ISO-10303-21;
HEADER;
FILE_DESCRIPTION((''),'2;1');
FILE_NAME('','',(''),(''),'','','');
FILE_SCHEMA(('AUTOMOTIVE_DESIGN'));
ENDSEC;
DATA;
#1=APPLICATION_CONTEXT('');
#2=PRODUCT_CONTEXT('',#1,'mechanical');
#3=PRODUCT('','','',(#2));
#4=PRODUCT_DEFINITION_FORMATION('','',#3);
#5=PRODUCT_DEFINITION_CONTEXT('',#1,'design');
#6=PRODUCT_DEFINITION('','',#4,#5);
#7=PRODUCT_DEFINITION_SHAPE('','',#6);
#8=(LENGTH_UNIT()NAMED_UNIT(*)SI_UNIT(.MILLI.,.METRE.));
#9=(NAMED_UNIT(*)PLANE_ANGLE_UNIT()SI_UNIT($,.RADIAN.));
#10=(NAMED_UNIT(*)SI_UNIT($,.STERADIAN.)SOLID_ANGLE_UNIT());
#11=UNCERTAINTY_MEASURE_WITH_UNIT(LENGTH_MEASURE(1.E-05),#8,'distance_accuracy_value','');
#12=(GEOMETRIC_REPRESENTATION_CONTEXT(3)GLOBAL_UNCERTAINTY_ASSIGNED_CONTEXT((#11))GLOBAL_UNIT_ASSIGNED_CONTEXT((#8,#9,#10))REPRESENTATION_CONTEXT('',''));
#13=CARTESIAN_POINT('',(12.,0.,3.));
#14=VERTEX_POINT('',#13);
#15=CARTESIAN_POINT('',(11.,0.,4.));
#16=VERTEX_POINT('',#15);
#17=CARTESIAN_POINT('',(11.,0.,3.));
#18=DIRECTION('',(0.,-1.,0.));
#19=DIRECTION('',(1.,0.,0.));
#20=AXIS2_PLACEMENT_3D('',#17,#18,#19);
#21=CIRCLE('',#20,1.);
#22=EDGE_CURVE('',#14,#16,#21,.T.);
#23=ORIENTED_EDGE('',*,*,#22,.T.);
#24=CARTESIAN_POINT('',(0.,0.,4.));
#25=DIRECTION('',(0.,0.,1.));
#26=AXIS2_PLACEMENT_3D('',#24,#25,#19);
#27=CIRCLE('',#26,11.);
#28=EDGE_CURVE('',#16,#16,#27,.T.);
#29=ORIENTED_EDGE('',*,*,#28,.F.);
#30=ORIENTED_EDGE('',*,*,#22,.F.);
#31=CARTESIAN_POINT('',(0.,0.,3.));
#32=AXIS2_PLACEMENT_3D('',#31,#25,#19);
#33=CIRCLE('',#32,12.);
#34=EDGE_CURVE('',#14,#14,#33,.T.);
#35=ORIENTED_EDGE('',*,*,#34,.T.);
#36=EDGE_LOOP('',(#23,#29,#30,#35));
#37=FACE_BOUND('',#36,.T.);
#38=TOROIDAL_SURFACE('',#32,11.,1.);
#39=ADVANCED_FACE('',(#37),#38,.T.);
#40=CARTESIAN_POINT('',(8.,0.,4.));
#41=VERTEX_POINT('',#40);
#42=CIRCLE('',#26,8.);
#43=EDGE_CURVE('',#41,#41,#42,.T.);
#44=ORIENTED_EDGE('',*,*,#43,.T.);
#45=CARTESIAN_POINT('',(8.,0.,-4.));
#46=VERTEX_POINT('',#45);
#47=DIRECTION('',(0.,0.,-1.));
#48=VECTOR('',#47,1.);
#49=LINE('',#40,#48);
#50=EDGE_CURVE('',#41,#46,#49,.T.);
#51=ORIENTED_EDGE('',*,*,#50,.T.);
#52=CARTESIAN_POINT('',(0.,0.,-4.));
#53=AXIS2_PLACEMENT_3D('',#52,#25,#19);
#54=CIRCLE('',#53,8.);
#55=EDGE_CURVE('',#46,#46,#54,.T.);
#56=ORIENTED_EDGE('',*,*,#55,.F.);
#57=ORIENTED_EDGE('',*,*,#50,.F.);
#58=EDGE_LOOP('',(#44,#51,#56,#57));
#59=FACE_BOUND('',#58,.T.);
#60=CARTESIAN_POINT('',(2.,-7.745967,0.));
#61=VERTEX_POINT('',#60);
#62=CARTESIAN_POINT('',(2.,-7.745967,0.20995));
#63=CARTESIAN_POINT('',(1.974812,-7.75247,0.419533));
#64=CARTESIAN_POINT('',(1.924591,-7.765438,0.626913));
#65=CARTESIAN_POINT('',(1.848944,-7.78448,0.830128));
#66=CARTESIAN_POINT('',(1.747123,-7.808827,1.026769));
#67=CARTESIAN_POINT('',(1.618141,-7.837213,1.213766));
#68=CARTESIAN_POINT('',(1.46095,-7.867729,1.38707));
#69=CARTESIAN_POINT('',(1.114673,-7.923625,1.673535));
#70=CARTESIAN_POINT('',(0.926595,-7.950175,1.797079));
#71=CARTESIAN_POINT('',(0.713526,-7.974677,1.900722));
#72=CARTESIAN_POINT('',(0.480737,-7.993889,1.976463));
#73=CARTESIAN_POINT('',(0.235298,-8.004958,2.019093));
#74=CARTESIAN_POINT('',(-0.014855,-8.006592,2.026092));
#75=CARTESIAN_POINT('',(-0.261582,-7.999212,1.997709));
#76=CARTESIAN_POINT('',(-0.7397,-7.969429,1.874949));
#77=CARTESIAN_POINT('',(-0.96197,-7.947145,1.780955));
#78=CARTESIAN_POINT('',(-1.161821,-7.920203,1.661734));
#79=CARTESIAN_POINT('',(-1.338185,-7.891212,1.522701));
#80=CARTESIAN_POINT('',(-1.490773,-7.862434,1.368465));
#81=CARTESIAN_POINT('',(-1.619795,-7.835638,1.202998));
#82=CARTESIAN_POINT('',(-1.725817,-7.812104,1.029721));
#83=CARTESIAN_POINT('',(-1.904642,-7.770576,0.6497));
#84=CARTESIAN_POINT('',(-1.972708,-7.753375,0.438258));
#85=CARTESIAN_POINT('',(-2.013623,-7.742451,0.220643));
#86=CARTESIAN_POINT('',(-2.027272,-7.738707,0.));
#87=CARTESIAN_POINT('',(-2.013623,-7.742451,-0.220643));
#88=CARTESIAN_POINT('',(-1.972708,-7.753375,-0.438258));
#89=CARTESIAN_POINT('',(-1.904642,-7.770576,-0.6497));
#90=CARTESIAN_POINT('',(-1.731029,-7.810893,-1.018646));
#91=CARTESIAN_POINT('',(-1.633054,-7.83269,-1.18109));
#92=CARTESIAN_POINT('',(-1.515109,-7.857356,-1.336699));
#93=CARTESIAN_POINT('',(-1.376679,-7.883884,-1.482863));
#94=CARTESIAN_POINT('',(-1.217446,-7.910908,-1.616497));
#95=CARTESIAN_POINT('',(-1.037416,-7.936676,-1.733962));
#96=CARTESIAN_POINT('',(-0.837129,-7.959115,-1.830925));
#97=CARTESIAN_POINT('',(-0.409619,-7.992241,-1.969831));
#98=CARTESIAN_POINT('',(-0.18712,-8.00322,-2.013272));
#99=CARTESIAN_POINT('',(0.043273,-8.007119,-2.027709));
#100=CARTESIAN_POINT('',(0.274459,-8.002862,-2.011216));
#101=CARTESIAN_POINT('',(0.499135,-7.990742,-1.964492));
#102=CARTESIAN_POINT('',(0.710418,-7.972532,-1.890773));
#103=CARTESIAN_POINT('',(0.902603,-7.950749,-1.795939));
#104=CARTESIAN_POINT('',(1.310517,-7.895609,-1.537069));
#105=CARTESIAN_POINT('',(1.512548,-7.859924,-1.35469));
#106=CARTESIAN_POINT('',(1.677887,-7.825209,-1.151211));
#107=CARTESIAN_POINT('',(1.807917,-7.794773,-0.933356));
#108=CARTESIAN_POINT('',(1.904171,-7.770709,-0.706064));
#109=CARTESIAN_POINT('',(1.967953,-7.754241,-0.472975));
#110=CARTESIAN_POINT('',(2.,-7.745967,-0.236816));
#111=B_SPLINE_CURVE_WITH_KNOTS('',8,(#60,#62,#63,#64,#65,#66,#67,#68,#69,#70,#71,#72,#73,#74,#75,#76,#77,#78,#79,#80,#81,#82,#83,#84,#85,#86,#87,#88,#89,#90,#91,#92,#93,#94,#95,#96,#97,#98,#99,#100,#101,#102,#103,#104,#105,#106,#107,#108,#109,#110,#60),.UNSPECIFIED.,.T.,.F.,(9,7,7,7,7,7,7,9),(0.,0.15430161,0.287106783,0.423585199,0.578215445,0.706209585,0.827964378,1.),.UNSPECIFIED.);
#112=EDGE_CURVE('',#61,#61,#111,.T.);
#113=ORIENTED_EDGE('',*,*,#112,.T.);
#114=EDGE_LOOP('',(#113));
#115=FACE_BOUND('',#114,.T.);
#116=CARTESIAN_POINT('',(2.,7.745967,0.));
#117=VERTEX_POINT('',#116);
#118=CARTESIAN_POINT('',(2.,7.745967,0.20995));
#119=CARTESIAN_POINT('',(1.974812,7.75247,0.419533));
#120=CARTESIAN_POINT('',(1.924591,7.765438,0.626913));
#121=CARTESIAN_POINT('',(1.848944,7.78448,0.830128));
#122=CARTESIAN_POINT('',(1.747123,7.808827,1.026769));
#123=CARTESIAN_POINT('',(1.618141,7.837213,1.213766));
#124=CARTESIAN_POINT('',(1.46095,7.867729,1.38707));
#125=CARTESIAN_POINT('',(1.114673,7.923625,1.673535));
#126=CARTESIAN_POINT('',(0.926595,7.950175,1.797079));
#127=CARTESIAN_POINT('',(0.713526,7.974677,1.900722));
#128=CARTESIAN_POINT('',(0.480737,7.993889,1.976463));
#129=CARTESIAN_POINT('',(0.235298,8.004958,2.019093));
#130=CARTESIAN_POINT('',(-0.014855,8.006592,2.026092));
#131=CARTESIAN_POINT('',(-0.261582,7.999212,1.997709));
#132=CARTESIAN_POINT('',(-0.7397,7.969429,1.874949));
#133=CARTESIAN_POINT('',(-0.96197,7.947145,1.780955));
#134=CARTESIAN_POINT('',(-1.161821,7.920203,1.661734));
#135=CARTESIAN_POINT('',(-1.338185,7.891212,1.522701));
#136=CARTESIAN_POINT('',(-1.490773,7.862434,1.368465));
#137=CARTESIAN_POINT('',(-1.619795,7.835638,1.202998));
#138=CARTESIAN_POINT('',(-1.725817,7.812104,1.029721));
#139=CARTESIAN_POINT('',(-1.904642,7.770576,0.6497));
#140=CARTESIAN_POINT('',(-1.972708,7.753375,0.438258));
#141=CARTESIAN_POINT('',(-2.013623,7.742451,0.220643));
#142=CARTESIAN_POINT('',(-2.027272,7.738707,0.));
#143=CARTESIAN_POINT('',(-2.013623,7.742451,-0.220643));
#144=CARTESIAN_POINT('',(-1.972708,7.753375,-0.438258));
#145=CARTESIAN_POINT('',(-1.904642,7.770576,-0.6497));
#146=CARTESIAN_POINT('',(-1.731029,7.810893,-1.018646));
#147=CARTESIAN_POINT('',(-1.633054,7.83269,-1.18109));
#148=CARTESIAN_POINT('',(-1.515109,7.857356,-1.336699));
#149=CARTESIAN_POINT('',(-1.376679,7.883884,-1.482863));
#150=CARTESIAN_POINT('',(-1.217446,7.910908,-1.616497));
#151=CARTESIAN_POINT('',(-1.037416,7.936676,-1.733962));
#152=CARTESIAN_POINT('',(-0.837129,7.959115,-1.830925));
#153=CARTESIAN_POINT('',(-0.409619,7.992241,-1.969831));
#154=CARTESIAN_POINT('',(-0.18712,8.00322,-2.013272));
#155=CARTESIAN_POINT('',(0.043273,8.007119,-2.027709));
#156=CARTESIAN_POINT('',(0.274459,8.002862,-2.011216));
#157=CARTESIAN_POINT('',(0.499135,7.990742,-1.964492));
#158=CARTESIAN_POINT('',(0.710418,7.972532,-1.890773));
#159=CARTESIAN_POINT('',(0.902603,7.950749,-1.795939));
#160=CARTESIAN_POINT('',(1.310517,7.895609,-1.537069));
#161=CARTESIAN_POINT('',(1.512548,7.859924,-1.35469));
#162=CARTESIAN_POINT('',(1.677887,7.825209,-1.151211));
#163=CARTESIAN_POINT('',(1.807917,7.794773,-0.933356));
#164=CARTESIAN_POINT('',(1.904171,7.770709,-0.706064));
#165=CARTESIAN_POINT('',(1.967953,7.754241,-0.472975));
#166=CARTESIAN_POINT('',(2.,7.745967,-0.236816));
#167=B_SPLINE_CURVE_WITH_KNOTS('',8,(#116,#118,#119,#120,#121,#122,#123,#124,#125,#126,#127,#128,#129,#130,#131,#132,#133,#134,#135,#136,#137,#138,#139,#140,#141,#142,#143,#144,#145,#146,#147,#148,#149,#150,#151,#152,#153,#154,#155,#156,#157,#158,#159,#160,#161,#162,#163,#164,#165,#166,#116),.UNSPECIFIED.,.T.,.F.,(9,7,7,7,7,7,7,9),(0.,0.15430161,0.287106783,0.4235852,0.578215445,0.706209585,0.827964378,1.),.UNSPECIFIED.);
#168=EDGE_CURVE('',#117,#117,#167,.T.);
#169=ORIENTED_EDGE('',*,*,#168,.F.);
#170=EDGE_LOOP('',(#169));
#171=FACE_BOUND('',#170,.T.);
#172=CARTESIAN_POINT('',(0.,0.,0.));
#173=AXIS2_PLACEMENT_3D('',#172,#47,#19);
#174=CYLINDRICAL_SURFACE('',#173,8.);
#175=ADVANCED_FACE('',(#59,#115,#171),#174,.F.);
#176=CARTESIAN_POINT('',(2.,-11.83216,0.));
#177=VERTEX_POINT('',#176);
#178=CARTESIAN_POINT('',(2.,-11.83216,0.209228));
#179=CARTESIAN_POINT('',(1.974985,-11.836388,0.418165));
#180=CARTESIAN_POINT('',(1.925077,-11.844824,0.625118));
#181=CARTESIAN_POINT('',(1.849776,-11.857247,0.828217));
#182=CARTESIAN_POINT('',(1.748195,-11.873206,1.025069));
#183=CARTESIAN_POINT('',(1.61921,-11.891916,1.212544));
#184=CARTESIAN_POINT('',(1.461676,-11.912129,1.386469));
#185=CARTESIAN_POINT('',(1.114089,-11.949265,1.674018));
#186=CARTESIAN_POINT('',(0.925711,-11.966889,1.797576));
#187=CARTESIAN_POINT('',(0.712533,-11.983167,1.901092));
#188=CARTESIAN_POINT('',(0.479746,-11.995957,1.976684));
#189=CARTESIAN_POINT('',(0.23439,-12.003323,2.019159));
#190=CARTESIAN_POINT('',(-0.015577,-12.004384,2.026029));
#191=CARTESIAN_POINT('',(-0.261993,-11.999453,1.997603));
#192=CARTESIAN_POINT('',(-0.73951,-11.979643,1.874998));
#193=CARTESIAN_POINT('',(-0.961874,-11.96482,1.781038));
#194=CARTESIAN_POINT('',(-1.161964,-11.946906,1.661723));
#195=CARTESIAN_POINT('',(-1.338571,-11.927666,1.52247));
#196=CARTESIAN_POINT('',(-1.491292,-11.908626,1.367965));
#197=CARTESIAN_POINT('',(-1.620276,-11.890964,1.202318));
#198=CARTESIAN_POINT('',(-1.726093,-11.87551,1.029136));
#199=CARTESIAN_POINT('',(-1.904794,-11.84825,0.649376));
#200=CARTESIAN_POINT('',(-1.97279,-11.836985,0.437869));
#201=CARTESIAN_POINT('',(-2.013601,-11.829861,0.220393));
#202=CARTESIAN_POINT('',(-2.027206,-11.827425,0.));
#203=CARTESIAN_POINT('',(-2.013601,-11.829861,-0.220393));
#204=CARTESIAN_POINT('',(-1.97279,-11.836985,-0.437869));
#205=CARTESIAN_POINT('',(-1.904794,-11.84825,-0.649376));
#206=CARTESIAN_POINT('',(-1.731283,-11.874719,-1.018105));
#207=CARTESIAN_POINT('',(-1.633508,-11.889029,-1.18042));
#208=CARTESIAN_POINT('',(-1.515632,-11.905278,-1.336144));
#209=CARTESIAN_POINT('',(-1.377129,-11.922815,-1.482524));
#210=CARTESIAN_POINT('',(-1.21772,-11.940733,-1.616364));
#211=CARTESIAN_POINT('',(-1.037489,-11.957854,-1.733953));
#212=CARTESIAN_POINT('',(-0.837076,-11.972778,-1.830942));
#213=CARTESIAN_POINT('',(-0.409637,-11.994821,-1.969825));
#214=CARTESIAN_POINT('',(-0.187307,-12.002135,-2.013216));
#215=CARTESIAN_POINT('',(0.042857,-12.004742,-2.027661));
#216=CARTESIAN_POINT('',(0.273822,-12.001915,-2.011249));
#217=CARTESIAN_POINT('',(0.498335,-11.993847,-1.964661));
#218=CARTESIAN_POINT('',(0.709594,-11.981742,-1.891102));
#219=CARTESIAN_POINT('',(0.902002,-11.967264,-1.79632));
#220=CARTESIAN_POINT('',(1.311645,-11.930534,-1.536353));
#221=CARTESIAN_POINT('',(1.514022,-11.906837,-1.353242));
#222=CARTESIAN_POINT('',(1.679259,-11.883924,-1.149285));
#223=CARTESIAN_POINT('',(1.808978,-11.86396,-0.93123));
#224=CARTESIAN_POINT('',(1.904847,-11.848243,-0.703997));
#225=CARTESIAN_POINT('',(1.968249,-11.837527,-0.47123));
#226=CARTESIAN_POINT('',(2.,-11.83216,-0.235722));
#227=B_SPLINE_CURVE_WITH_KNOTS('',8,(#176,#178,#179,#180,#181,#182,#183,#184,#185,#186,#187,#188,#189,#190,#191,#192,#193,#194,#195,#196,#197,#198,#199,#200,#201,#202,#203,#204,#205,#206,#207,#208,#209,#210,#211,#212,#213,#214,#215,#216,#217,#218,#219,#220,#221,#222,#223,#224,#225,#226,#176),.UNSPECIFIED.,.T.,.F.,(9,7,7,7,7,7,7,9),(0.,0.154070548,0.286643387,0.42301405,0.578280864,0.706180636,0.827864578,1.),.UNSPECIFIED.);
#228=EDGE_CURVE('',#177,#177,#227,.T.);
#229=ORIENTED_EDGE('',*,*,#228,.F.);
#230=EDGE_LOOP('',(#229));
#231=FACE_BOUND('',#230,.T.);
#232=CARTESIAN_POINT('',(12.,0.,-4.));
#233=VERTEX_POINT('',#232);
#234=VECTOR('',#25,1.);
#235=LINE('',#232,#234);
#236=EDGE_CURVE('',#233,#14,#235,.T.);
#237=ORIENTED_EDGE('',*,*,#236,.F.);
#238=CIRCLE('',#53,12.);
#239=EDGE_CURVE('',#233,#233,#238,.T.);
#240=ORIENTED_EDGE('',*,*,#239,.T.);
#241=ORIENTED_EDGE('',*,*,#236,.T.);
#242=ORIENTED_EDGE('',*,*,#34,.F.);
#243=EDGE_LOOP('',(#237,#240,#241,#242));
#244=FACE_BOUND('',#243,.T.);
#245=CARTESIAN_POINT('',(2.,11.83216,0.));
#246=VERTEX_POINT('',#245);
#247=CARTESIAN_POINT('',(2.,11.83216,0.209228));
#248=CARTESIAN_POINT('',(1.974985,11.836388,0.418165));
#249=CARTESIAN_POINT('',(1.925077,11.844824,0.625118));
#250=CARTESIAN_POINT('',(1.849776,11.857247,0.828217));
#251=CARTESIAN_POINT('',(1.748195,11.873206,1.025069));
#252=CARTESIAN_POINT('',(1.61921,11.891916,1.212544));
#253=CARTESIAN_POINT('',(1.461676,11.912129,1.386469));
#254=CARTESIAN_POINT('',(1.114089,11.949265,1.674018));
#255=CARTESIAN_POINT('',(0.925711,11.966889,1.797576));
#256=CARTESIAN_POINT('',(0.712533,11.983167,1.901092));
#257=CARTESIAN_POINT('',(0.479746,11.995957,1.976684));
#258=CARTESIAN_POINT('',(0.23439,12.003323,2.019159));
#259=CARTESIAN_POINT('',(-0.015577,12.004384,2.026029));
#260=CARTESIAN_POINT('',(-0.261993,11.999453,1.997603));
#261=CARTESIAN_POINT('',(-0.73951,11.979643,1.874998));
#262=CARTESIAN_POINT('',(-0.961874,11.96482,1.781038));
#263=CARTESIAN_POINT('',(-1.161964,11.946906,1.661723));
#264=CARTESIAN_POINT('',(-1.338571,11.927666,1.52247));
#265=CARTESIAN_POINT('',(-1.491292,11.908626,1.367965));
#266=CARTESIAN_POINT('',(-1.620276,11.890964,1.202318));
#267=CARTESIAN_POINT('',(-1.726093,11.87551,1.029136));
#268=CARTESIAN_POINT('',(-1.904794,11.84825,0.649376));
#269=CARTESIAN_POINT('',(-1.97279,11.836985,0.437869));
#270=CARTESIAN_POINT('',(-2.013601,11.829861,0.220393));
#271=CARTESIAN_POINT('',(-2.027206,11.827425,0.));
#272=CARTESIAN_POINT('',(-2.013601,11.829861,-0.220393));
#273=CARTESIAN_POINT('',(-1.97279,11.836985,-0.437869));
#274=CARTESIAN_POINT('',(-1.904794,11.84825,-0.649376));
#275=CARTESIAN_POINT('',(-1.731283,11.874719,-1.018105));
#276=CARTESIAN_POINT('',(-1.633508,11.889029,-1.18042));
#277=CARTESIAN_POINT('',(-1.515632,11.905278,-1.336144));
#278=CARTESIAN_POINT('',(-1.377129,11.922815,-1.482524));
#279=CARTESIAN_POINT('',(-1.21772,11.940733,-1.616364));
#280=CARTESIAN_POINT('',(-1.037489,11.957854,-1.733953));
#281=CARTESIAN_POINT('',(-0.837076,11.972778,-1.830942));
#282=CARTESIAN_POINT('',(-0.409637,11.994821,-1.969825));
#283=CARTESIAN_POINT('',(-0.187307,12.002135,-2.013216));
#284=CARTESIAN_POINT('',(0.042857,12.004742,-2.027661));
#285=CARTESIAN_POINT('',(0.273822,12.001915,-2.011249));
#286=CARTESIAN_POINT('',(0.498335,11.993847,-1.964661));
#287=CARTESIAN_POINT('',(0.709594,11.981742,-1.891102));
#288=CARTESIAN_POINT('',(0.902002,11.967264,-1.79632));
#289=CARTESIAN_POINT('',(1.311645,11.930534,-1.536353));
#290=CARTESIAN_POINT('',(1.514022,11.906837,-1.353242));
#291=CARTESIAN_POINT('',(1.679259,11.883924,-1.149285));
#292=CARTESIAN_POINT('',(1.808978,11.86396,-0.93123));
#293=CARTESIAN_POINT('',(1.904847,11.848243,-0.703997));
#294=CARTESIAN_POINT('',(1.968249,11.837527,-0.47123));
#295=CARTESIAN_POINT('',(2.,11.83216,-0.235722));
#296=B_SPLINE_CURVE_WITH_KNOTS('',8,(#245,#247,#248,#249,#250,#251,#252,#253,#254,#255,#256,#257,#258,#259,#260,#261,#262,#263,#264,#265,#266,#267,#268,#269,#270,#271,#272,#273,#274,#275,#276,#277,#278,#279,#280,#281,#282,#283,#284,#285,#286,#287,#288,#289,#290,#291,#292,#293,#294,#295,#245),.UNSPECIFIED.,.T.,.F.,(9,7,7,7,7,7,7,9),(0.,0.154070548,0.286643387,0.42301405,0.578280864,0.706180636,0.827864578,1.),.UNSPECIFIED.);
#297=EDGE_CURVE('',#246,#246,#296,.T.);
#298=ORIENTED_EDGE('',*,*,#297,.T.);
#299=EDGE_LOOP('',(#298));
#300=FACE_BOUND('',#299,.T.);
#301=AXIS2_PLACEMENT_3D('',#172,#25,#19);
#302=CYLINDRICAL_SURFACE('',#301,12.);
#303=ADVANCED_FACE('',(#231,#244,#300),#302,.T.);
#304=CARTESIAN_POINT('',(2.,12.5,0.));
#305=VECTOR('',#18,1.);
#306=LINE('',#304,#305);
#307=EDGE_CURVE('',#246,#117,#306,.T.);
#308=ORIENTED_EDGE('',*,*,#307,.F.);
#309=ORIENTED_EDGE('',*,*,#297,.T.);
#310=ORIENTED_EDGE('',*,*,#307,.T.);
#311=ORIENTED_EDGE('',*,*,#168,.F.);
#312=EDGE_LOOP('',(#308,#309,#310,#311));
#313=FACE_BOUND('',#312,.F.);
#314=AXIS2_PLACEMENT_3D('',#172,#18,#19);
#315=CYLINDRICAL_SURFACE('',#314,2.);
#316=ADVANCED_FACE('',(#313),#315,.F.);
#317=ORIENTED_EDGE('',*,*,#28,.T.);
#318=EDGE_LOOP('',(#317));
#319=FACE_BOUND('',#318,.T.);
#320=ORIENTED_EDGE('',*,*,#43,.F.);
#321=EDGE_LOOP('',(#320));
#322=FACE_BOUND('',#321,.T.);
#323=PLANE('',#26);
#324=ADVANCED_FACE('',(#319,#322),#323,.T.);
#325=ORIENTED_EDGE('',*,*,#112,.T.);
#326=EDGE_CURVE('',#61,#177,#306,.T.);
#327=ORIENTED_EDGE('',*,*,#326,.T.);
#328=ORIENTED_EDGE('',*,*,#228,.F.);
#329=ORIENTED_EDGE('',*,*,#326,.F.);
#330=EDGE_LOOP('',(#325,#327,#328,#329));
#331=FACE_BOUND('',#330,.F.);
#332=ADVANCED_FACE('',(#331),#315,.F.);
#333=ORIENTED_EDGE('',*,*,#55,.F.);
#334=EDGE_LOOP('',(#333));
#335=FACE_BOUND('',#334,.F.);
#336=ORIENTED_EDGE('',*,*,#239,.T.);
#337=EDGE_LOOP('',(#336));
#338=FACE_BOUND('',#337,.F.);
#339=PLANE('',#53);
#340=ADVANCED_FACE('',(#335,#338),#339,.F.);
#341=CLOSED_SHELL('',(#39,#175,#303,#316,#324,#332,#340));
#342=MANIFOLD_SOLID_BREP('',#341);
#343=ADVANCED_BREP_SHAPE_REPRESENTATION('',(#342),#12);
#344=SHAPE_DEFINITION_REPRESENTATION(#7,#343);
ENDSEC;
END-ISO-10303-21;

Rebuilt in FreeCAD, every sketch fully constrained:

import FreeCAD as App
import Part
import Sketcher

V = App.Vector
Q = App.Units.Quantity


def edges_at(feature, points):
    """Names of the edges that pass closest to the given points."""
    edges = feature.Shape.Edges
    near = lambda p: min(range(len(edges)), key=lambda i: edges[i].distToShape(Part.Vertex(*p))[0])
    return sorted({f"Edge{near(p) + 1}" for p in points})

doc = App.newDocument("Part")
params = doc.addObject("Spreadsheet::Sheet", "Params")
for row, (alias, value) in enumerate([
    ("sketch1_diameter", "24 mm"),
    ("sketch1_diameter2", "16 mm"),
    ("pad1_length", "8 mm"),
    ("fillet_radius", "1 mm"),
    ("sketch2_diameter", "4 mm"),
    ("pocket1_length", "25 mm"),
], start=1):
    params.set(f"A{row}", alias)
    params.set(f"B{row}", "=" + value)
    params.setAlias(f"B{row}", alias)

body = doc.addObject("PartDesign::Body", "Body")

sketch1 = body.newObject("Sketcher::SketchObject", "Sketch")
sketch1.AttachmentSupport = (doc.getObject("XY_Plane"), [""])
sketch1.MapMode = "FlatFace"
sketch1.addGeometry(Part.Circle(V(0, 0, 0), V(0, 0, 1), 12), False)
sketch1.addGeometry(Part.Circle(V(0, 0, 0), V(0, 0, 1), 8), False)
sketch1.addConstraint(Sketcher.Constraint("Coincident", 0, 3, -1, 1))
sketch1.addConstraint(Sketcher.Constraint("Coincident", 1, 3, -1, 1))
sketch1.addConstraint(Sketcher.Constraint("Diameter", 0, Q("24 mm")))
sketch1.addConstraint(Sketcher.Constraint("Diameter", 1, Q("16 mm")))
sketch1.setExpression("Constraints[2]", "Params.sketch1_diameter")
sketch1.setExpression("Constraints[3]", "Params.sketch1_diameter2")
pad1 = body.newObject("PartDesign::Pad", "Pad")
pad1.Profile = sketch1
pad1.setExpression("Length", "Params.pad1_length")
pad1.Midplane = True
doc.recompute()

fillet = body.newObject("PartDesign::Fillet", "Fillet")
fillet.Base = (pad1, edges_at(pad1, [(-12, 0, 4)]))
fillet.setExpression("Radius", "Params.fillet_radius")

sketch2 = body.newObject("Sketcher::SketchObject", "Sketch001")
sketch2.AttachmentSupport = (doc.getObject("XZ_Plane"), [""])
sketch2.MapMode = "FlatFace"
sketch2.addGeometry(Part.Circle(V(0, 0, 0), V(0, 0, 1), 2), False)
sketch2.addConstraint(Sketcher.Constraint("Coincident", 0, 3, -1, 1))
sketch2.addConstraint(Sketcher.Constraint("Diameter", 0, Q("4 mm")))
sketch2.setExpression("Constraints[1]", "Params.sketch2_diameter")
pocket1 = body.newObject("PartDesign::Pocket", "Pocket")
pocket1.Profile = sketch2
pocket1.setExpression("Length", "Params.pocket1_length")
pocket1.Midplane = True

doc.recompute()
